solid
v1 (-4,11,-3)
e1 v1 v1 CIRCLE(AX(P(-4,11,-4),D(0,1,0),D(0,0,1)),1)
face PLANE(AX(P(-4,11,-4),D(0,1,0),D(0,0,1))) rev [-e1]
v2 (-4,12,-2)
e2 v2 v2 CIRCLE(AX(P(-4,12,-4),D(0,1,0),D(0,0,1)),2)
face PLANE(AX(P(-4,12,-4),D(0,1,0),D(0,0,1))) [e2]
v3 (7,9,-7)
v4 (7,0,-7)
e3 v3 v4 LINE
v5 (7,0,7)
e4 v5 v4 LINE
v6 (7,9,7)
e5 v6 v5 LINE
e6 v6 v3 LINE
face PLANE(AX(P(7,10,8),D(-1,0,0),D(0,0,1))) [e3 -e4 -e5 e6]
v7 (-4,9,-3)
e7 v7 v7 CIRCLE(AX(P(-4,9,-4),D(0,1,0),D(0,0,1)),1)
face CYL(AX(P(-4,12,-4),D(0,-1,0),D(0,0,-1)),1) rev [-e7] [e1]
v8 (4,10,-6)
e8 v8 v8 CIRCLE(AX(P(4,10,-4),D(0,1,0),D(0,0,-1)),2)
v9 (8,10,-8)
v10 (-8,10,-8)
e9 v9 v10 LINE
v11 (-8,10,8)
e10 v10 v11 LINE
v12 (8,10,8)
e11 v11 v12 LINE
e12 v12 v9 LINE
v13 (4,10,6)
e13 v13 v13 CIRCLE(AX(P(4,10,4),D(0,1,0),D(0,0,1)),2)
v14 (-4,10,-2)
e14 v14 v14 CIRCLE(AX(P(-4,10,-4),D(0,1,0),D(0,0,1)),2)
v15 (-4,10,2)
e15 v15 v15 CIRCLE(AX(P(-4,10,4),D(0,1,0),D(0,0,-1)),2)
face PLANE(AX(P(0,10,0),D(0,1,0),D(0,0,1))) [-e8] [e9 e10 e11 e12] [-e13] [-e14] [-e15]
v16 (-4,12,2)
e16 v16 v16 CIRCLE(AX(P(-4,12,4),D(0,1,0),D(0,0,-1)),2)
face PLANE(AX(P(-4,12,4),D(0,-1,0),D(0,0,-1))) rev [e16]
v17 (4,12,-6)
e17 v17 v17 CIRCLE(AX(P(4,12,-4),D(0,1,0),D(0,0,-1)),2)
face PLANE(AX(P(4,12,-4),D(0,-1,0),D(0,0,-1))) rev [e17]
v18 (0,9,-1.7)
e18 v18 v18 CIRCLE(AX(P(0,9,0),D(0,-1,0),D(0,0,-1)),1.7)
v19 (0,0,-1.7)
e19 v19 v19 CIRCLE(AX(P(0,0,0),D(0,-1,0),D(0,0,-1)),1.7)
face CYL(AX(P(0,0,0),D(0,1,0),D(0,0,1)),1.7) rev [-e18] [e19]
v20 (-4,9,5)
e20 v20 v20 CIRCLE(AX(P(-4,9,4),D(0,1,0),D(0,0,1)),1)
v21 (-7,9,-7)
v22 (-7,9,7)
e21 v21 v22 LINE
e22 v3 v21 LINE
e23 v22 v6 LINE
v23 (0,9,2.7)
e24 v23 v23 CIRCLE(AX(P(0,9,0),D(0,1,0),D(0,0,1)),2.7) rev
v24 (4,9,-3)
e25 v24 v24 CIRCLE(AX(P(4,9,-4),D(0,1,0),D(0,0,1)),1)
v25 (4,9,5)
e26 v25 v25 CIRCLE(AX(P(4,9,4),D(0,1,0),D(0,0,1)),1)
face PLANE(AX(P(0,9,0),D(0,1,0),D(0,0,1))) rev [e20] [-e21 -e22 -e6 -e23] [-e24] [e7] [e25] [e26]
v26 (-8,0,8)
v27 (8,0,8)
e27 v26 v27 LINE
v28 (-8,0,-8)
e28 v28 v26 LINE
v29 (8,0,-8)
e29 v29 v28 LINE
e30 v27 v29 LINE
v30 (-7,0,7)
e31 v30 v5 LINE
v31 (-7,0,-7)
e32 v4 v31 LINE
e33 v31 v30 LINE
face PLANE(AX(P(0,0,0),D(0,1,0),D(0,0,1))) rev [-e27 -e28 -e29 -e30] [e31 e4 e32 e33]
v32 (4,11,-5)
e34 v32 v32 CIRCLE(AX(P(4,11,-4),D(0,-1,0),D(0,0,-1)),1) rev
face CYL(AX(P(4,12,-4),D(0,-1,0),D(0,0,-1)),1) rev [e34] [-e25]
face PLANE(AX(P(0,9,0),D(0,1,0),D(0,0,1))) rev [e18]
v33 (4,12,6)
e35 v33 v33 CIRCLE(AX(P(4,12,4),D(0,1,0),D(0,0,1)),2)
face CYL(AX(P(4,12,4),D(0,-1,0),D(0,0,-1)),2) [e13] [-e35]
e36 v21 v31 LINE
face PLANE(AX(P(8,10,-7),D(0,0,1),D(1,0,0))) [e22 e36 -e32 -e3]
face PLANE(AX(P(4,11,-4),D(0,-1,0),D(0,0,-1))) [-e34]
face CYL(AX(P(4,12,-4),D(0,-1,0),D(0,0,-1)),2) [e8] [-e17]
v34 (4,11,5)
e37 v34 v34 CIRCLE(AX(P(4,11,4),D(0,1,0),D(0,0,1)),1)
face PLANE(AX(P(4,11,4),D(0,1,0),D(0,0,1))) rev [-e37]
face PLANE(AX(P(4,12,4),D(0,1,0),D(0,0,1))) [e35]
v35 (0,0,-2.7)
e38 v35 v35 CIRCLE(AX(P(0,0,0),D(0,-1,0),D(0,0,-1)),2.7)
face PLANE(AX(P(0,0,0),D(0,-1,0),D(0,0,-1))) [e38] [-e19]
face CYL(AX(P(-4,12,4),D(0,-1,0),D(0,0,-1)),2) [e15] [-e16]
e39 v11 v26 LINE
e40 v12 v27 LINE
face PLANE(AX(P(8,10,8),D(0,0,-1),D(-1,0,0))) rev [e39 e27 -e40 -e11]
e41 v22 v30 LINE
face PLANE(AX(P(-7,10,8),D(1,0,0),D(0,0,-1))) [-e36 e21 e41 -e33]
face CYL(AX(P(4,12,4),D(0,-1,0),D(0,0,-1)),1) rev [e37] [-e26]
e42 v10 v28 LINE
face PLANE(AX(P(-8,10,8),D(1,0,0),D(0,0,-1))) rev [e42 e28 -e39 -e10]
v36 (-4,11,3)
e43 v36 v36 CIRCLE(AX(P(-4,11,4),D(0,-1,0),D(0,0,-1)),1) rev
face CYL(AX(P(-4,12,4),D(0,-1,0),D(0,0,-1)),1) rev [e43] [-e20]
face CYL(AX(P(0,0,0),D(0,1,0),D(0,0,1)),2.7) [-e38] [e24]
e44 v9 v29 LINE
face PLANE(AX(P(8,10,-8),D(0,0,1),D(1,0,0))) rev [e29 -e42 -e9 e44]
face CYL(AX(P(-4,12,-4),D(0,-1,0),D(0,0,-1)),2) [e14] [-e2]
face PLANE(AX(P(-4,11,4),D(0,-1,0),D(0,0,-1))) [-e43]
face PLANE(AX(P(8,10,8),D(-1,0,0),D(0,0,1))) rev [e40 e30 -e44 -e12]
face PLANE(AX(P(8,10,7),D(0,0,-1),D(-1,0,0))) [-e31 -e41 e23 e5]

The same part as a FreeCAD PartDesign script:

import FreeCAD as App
import Part
import Sketcher


def faces_at(feature, points):
    """Names of the faces that lie closest to the given points."""
    faces = feature.Shape.Faces
    near = lambda p: min(range(len(faces)), key=lambda i: faces[i].distToShape(Part.Vertex(*p))[0])
    return sorted({f"Face{near(p) + 1}" for p in points})

doc = App.newDocument("Part")
body = doc.addObject("PartDesign::Body", "Body")

# Sketch on XZ plane
sketch1 = body.newObject("Sketcher::SketchObject", "Sketch")
sketch1.AttachmentSupport = (doc.getObject("XZ_Plane"), [""])
sketch1.MapMode = "FlatFace"
sketch1.addGeometry(Part.LineSegment(App.Vector(-8, -8, 0), App.Vector(-8, 8, 0)), False)
sketch1.addGeometry(Part.LineSegment(App.Vector(-8, 8, 0), App.Vector(8, 8, 0)), False)
sketch1.addGeometry(Part.LineSegment(App.Vector(8, 8, 0), App.Vector(8, -8, 0)), False)
sketch1.addGeometry(Part.LineSegment(App.Vector(8, -8, 0), App.Vector(-8, -8, 0)), False)
sketch1.addConstraint(Sketcher.Constraint("Coincident", 0, 2, 1, 1))
sketch1.addConstraint(Sketcher.Constraint("Coincident", 1, 2, 2, 1))
sketch1.addConstraint(Sketcher.Constraint("Coincident", 2, 2, 3, 1))
sketch1.addConstraint(Sketcher.Constraint("Coincident", 3, 2, 0, 1))
sketch1.addConstraint(Sketcher.Constraint("Vertical", 0))
sketch1.addConstraint(Sketcher.Constraint("Horizontal", 1))
sketch1.addConstraint(Sketcher.Constraint("Vertical", 2))
sketch1.addConstraint(Sketcher.Constraint("Horizontal", 3))
sketch1.addConstraint(Sketcher.Constraint("Symmetric", 0, 2, 2, 2, -1, 1))
sketch1.addConstraint(Sketcher.Constraint("Equal", 3, 0))
sketch1.addConstraint(Sketcher.Constraint("DistanceX", 1, 1, 1, 2, 16.0))
pad1 = body.newObject("PartDesign::Pad", "Pad")
pad1.Profile = sketch1
pad1.Length = 10
pad1.Reversed = True

# Sketch on XZ plane
sketch2 = body.newObject("Sketcher::SketchObject", "Sketch001")
sketch2.AttachmentSupport = (doc.getObject("XZ_Plane"), [""])
sketch2.MapMode = "FlatFace"
sketch2.AttachmentOffset = App.Placement(App.Vector(0, 0, -10), App.Rotation())
sketch2.addGeometry(Part.Circle(App.Vector(-4, -4, 0), App.Vector(0, 0, 1), 2), False)
sketch2.addGeometry(Part.Circle(App.Vector(4, -4, 0), App.Vector(0, 0, 1), 2), False)
sketch2.addGeometry(Part.Circle(App.Vector(-4, 4, 0), App.Vector(0, 0, 1), 2), False)
sketch2.addGeometry(Part.Circle(App.Vector(4, 4, 0), App.Vector(0, 0, 1), 2), False)
sketch2.addConstraint(Sketcher.Constraint("Equal", 0, 1))
sketch2.addConstraint(Sketcher.Constraint("Equal", 1, 2))
sketch2.addConstraint(Sketcher.Constraint("Equal", 2, 3))
sketch2.addConstraint(Sketcher.Constraint("Symmetric", 1, 3, 2, 3, -1, 1))
sketch2.addConstraint(Sketcher.Constraint("Symmetric", 0, 3, 3, 3, -1, 1))
sketch2.addConstraint(Sketcher.Constraint("Symmetric", 0, 3, 1, 3, -2))
sketch2.addConstraint(Sketcher.Constraint("Diameter", 0, 4.0))
sketch2.addConstraint(Sketcher.Constraint("DistanceX", 0, 3, -1, 1, 4.0))
sketch2.addConstraint(Sketcher.Constraint("DistanceY", 0, 3, -1, 1, 4.0))
pad2 = body.newObject("PartDesign::Pad", "Pad001")
pad2.Profile = sketch2
pad2.Length = 2
pad2.Reversed = True
doc.recompute()

thickness = body.newObject("PartDesign::Thickness", "Thickness")
thickness.Base = (pad2, faces_at(pad2, [(0, 0, 0)]))
thickness.Value = 1
thickness.Reversed = True
thickness.Join = "Intersection"

# Sketch on XZ plane
sketch3 = body.newObject("Sketcher::SketchObject", "Sketch002")
sketch3.AttachmentSupport = (doc.getObject("XZ_Plane"), [""])
sketch3.MapMode = "FlatFace"
sketch3.AttachmentOffset = App.Placement(App.Vector(0, 0, -9), App.Rotation())
sketch3.addGeometry(Part.Circle(App.Vector(0, 0, 0), App.Vector(0, 0, 1), 2.7), False)
sketch3.addGeometry(Part.Circle(App.Vector(0, 0, 0), App.Vector(0, 0, 1), 1.7), False)
sketch3.addConstraint(Sketcher.Constraint("Coincident", 0, 3, -1, 1))
sketch3.addConstraint(Sketcher.Constraint("Coincident", 1, 3, -1, 1))
sketch3.addConstraint(Sketcher.Constraint("Diameter", 0, 5.4))
sketch3.addConstraint(Sketcher.Constraint("Diameter", 1, 3.4))
pad3 = body.newObject("PartDesign::Pad", "Pad002")
pad3.Profile = sketch3
pad3.Length = 9

doc.recompute()
